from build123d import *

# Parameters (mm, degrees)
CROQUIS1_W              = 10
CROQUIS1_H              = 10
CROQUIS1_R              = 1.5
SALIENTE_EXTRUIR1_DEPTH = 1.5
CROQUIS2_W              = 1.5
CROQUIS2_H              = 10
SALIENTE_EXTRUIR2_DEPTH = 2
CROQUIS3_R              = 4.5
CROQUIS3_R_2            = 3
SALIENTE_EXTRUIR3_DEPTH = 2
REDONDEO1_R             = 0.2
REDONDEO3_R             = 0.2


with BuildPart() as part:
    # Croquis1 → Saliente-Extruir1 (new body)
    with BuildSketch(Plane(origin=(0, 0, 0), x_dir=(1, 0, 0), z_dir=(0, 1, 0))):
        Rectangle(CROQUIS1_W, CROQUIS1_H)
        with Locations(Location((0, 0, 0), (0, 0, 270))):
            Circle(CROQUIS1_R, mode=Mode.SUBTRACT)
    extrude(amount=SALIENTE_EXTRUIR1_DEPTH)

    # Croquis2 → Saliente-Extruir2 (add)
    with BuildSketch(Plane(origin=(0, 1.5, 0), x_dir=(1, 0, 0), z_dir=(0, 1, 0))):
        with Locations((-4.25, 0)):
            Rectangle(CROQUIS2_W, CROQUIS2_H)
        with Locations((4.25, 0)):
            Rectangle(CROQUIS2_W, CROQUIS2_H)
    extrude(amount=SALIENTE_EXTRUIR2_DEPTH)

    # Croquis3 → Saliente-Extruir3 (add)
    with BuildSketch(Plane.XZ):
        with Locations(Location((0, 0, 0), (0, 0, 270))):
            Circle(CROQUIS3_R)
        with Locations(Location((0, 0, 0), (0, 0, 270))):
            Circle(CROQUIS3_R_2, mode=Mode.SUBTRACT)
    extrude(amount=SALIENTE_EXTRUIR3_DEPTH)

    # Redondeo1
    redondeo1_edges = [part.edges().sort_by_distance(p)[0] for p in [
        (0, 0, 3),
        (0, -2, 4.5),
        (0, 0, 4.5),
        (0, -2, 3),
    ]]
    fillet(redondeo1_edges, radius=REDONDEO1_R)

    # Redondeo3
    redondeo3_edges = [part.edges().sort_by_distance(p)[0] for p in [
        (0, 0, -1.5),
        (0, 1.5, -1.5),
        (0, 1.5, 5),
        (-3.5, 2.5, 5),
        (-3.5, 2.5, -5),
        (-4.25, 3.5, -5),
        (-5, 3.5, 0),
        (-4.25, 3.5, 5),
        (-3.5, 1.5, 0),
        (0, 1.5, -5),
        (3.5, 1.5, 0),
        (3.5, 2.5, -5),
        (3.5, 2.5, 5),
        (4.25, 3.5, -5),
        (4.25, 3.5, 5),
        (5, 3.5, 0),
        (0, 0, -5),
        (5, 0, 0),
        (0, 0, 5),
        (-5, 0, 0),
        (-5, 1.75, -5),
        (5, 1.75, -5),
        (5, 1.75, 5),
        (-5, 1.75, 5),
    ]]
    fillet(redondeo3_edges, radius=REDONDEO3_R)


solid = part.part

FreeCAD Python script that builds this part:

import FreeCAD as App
import Part
import Sketcher
from FreeCAD import Vector


def edges_at(feature, points):
    """Names of the edges that pass closest to the given points."""
    edges = feature.Shape.Edges
    near = lambda p: min(range(len(edges)), key=lambda i: edges[i].distToShape(Part.Vertex(*p))[0])
    return sorted({f"Edge{near(p) + 1}" for p in points})

doc = App.newDocument("Part")
body = doc.addObject("PartDesign::Body", "Body")

# Sketch on XZ plane
sketch1 = body.newObject("Sketcher::SketchObject", "Sketch")
sketch1.AttachmentSupport = (doc.getObject("XZ_Plane"), [""])
sketch1.MapMode = "FlatFace"
sketch1.addGeometry(Part.LineSegment(Vector(-5, -5, 0), Vector(-5, 5, 0)), False)
sketch1.addGeometry(Part.LineSegment(Vector(-5, 5, 0), Vector(5, 5, 0)), False)
sketch1.addGeometry(Part.LineSegment(Vector(5, 5, 0), Vector(5, -5, 0)), False)
sketch1.addGeometry(Part.LineSegment(Vector(5, -5, 0), Vector(-5, -5, 0)), False)
sketch1.addGeometry(Part.Circle(Vector(0, 0, 0), Vector(0, 0, 1), 1.5), False)
sketch1.addConstraint(Sketcher.Constraint("Coincident", 0, 2, 1, 1))
sketch1.addConstraint(Sketcher.Constraint("Coincident", 1, 2, 2, 1))
sketch1.addConstraint(Sketcher.Constraint("Coincident", 2, 2, 3, 1))
sketch1.addConstraint(Sketcher.Constraint("Coincident", 3, 2, 0, 1))
sketch1.addConstraint(Sketcher.Constraint("Vertical", 0))
sketch1.addConstraint(Sketcher.Constraint("Horizontal", 1))
sketch1.addConstraint(Sketcher.Constraint("Vertical", 2))
sketch1.addConstraint(Sketcher.Constraint("Horizontal", 3))
sketch1.addConstraint(Sketcher.Constraint("Coincident", 4, 3, -1, 1))
sketch1.addConstraint(Sketcher.Constraint("Symmetric", 0, 2, 2, 2, -1, 1))
sketch1.addConstraint(Sketcher.Constraint("Equal", 3, 0))
sketch1.addConstraint(Sketcher.Constraint("Diameter", 4, 3.0))
sketch1.addConstraint(Sketcher.Constraint("DistanceX", 1, 1, 1, 2, 10.0))
pad1 = body.newObject("PartDesign::Pad", "Pad")
pad1.Profile = sketch1
pad1.Length = 1.5
pad1.Reversed = True

# Sketch on XZ plane
sketch2 = body.newObject("Sketcher::SketchObject", "Sketch001")
sketch2.AttachmentSupport = (doc.getObject("XZ_Plane"), [""])
sketch2.MapMode = "FlatFace"
sketch2.AttachmentOffset = App.Placement(Vector(0, 0, -1.5), App.Rotation())
sketch2.addGeometry(Part.LineSegment(Vector(-5, -5, 0), Vector(-5, 5, 0)), False)
sketch2.addGeometry(Part.LineSegment(Vector(-5, 5, 0), Vector(-3.5, 5, 0)), False)
sketch2.addGeometry(Part.LineSegment(Vector(-3.5, 5, 0), Vector(-3.5, -5, 0)), False)
sketch2.addGeometry(Part.LineSegment(Vector(-3.5, -5, 0), Vector(-5, -5, 0)), False)
sketch2.addGeometry(Part.LineSegment(Vector(3.5, -5, 0), Vector(3.5, 5, 0)), False)
sketch2.addGeometry(Part.LineSegment(Vector(3.5, 5, 0), Vector(5, 5, 0)), False)
sketch2.addGeometry(Part.LineSegment(Vector(5, 5, 0), Vector(5, -5, 0)), False)
sketch2.addGeometry(Part.LineSegment(Vector(5, -5, 0), Vector(3.5, -5, 0)), False)
sketch2.addConstraint(Sketcher.Constraint("Coincident", 0, 2, 1, 1))
sketch2.addConstraint(Sketcher.Constraint("Coincident", 1, 2, 2, 1))
sketch2.addConstraint(Sketcher.Constraint("Coincident", 2, 2, 3, 1))
sketch2.addConstraint(Sketcher.Constraint("Coincident", 3, 2, 0, 1))
sketch2.addConstraint(Sketcher.Constraint("Coincident", 4, 2, 5, 1))
sketch2.addConstraint(Sketcher.Constraint("Coincident", 5, 2, 6, 1))
sketch2.addConstraint(Sketcher.Constraint("Coincident", 6, 2, 7, 1))
sketch2.addConstraint(Sketcher.Constraint("Coincident", 7, 2, 4, 1))
sketch2.addConstraint(Sketcher.Constraint("Vertical", 0))
sketch2.addConstraint(Sketcher.Constraint("Horizontal", 1))
sketch2.addConstraint(Sketcher.Constraint("Vertical", 2))
sketch2.addConstraint(Sketcher.Constraint("Horizontal", 3))
sketch2.addConstraint(Sketcher.Constraint("Vertical", 4))
sketch2.addConstraint(Sketcher.Constraint("Horizontal", 5))
sketch2.addConstraint(Sketcher.Constraint("Vertical", 6))
sketch2.addConstraint(Sketcher.Constraint("Horizontal", 7))
sketch2.addConstraint(Sketcher.Constraint("Symmetric", 2, 2, 4, 2, -1, 1))
sketch2.addConstraint(Sketcher.Constraint("Symmetric", 0, 2, 6, 2, -1, 1))
sketch2.addConstraint(Sketcher.Constraint("Horizontal", 1, 2, 4, 2))
sketch2.addConstraint(Sketcher.Constraint("DistanceY", 0, 1, 0, 2, 10.0))
sketch2.addConstraint(Sketcher.Constraint("DistanceX", 1, 1, 1, 2, 1.5))
sketch2.addConstraint(Sketcher.Constraint("DistanceX", 0, 2, -1, 1, 5.0))
pad2 = body.newObject("PartDesign::Pad", "Pad001")
pad2.Profile = sketch2
pad2.Length = 2
pad2.Reversed = True

# Sketch on XZ plane
sketch3 = body.newObject("Sketcher::SketchObject", "Sketch002")
sketch3.AttachmentSupport = (doc.getObject("XZ_Plane"), [""])
sketch3.MapMode = "FlatFace"
sketch3.addGeometry(Part.Circle(Vector(0, 0, 0), Vector(0, 0, 1), 4.5), False)
sketch3.addGeometry(Part.Circle(Vector(0, 0, 0), Vector(0, 0, 1), 3), False)
sketch3.addConstraint(Sketcher.Constraint("Coincident", 0, 3, -1, 1))
sketch3.addConstraint(Sketcher.Constraint("Coincident", 1, 3, -1, 1))
sketch3.addConstraint(Sketcher.Constraint("Diameter", 0, 9.0))
sketch3.addConstraint(Sketcher.Constraint("Diameter", 1, 6.0))
pad3 = body.newObject("PartDesign::Pad", "Pad002")
pad3.Profile = sketch3
pad3.Length = 2
doc.recompute()

fillet = body.newObject("PartDesign::Fillet", "Fillet")
fillet.Base = (pad3, edges_at(pad3, [
    (0, 0, 3),
    (0, -2, 4.5),
    (0, 0, 4.5),
    (0, -2, 3),
]))
fillet.Radius = 0.2
doc.recompute()

fillet2 = body.newObject("PartDesign::Fillet", "Fillet001")
fillet2.Base = (fillet, edges_at(fillet, [
    (0, 0, -1.5),
    (0, 1.5, -1.5),
    (0, 1.5, 5),
    (-3.5, 2.5, 5),
    (-3.5, 2.5, -5),
    (-4.25, 3.5, -5),
    (-5, 3.5, 0),
    (-4.25, 3.5, 5),
    (-3.5, 1.5, 0),
    (0, 1.5, -5),
    (3.5, 1.5, 0),
    (3.5, 2.5, -5),
    (3.5, 2.5, 5),
    (4.25, 3.5, -5),
    (4.25, 3.5, 5),
    (5, 3.5, 0),
    (0, 0, -5),
    (5, 0, 0),
    (0, 0, 5),
    (-5, 0, 0),
    (-5, 1.75, -5),
    (5, 1.75, -5),
    (5, 1.75, 5),
    (-5, 1.75, 5),
]))
fillet2.Radius = 0.2

doc.recompute()
